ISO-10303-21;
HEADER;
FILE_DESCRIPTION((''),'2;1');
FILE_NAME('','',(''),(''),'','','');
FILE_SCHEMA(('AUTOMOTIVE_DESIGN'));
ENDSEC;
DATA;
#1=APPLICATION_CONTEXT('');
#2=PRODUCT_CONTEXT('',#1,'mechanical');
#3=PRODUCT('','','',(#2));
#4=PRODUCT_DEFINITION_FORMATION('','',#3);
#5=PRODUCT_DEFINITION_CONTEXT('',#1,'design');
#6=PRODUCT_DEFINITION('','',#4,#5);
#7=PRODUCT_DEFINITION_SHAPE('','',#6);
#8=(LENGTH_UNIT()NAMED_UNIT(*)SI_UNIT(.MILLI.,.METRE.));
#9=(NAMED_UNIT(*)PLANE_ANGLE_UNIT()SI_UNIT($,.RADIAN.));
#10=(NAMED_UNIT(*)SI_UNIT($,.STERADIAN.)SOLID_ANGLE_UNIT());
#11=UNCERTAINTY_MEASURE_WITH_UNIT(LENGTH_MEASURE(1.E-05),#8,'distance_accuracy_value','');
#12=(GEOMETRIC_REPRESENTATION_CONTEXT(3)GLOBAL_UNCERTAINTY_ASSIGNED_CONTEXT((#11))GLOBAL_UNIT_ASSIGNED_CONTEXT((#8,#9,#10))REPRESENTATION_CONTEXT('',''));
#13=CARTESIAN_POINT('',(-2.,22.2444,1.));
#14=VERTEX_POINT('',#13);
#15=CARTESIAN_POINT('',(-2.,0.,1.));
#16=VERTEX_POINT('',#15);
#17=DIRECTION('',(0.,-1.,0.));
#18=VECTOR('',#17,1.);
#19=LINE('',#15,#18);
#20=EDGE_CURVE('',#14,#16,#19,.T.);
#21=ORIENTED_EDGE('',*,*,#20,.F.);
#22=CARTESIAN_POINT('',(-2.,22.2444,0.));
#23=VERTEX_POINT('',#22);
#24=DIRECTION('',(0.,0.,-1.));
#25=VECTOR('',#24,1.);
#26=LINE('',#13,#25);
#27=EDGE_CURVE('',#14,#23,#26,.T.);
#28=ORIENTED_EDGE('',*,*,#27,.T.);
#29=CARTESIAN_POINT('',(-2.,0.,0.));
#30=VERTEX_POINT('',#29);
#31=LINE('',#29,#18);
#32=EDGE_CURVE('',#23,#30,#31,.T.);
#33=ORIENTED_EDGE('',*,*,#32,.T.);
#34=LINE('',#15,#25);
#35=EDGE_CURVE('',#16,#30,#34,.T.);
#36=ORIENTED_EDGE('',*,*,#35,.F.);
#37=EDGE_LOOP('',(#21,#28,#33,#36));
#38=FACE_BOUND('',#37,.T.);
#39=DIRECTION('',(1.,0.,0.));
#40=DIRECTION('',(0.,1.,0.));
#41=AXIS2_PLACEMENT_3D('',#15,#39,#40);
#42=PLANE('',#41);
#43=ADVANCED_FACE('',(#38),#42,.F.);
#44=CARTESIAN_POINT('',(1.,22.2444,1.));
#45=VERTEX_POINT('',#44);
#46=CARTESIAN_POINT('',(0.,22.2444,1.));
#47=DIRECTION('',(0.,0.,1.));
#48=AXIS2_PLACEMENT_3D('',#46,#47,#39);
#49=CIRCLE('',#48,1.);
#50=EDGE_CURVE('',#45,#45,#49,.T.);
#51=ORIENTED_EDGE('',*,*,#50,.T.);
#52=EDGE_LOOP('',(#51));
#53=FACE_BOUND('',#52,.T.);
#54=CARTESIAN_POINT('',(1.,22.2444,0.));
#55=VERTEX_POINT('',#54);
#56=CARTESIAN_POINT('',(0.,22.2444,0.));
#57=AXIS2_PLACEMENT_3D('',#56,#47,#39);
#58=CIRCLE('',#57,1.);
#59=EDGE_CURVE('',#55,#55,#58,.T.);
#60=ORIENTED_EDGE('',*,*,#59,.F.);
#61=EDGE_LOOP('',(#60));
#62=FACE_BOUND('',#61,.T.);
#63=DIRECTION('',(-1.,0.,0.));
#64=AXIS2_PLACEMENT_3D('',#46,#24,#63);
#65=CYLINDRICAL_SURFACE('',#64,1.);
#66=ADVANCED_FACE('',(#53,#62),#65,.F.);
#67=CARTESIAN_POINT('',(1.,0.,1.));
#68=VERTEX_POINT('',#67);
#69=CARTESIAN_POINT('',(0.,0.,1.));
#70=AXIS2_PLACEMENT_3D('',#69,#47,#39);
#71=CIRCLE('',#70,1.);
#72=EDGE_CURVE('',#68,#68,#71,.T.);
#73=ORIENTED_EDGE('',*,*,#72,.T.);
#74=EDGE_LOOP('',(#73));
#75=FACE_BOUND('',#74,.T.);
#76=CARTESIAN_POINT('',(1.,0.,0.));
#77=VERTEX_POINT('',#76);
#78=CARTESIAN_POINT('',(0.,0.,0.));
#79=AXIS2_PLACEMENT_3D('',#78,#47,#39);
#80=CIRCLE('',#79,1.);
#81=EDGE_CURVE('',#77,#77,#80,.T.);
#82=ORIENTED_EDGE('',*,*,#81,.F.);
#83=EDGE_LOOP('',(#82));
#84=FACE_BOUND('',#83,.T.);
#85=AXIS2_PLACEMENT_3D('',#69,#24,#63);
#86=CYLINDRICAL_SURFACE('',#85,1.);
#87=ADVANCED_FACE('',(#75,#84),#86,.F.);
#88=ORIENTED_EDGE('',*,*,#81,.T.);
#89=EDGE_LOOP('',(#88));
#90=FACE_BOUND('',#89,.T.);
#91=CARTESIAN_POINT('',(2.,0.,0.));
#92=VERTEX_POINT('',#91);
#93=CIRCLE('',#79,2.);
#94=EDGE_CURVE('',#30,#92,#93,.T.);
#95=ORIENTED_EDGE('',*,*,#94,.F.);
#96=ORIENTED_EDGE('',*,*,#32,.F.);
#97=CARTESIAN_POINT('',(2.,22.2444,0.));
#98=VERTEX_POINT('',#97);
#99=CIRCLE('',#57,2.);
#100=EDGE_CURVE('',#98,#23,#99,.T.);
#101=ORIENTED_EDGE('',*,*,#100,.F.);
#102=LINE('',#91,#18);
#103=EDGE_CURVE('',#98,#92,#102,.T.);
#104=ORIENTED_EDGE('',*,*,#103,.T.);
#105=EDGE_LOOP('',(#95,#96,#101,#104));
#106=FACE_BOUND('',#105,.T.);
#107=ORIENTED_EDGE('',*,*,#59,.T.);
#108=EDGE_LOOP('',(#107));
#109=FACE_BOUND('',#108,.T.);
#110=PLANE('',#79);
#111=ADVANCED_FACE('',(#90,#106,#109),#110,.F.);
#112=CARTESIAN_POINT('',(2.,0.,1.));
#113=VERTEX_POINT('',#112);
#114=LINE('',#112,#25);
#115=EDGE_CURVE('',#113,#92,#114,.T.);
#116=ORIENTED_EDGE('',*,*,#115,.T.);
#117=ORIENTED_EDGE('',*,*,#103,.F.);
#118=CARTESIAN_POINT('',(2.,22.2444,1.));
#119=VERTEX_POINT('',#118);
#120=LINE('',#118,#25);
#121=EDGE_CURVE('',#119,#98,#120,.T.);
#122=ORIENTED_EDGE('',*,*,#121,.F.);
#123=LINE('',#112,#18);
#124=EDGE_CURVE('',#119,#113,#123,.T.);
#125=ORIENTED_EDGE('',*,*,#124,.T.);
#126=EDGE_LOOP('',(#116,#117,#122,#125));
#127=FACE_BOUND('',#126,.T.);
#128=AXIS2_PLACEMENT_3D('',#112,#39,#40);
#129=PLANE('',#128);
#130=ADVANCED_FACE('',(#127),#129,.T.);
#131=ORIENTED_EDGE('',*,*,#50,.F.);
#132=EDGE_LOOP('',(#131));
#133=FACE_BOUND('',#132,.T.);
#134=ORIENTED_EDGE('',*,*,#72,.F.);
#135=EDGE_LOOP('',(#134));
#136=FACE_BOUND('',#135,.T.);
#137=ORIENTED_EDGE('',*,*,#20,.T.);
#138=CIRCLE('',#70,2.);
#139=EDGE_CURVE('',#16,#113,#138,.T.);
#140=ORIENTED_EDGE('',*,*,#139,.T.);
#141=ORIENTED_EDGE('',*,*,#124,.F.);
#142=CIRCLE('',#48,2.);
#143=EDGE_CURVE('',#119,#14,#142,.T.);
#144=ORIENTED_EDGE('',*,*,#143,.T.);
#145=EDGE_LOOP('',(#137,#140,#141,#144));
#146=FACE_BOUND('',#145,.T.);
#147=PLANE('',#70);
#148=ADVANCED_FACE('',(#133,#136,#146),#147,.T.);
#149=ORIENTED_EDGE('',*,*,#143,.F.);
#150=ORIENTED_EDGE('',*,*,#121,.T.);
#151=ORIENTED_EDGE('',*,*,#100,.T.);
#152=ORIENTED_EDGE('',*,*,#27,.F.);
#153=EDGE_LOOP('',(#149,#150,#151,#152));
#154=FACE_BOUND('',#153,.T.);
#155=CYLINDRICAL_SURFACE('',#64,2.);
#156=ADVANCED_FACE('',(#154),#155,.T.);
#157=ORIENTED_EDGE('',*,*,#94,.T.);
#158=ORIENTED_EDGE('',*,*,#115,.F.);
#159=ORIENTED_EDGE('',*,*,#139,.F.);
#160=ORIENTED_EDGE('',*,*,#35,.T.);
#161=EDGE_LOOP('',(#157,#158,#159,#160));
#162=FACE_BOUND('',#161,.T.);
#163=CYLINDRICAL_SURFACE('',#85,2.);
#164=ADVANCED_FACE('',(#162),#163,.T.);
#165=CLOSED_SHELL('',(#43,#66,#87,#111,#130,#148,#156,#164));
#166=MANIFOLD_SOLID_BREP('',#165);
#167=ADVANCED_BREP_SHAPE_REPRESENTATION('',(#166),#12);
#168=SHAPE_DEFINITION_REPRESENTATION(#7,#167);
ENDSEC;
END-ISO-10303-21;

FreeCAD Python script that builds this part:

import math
import FreeCAD as App
import Part
import Sketcher

doc = App.newDocument("Part")
body = doc.addObject("PartDesign::Body", "Body")

# Sketch on XY plane
sketch1 = body.newObject("Sketcher::SketchObject", "Sketch")
sketch1.AttachmentSupport = (doc.getObject("XY_Plane"), [""])
sketch1.MapMode = "FlatFace"
sketch1.addGeometry([
    Part.LineSegment(App.Vector(-2, 22.2, 0), App.Vector(-2, 0, 0)),  # 0
    Part.ArcOfCircle(Part.Circle(App.Vector(0, 0, 0), App.Vector(0, 0, 1), 2), math.radians(180), math.radians(360)),  # 1
    Part.LineSegment(App.Vector(2, 0, 0), App.Vector(2, 22.2, 0)),  # 2
    Part.ArcOfCircle(Part.Circle(App.Vector(0, 22.2, 0), App.Vector(0, 0, 1), 2), math.radians(0), math.radians(180)),  # 3
    Part.Circle(App.Vector(0, 0, 0), App.Vector(0, 0, 1), 1),  # 4
    Part.Circle(App.Vector(0, 22.2, 0), App.Vector(0, 0, 1), 1),  # 5
], False)
sketch1.addConstraint([
    Sketcher.Constraint("Tangent", 0, 2, 1, 1),
    Sketcher.Constraint("Tangent", 1, 2, 2, 1),
    Sketcher.Constraint("Tangent", 2, 2, 3, 1),
    Sketcher.Constraint("Tangent", 3, 2, 0, 1),
    Sketcher.Constraint("Vertical", 0),
    Sketcher.Constraint("Vertical", 2),
    Sketcher.Constraint("Coincident", 1, 3, -1, 1),
    Sketcher.Constraint("Coincident", 4, 3, -1, 1),
    Sketcher.Constraint("Coincident", 5, 3, 3, 3),
    Sketcher.Constraint("Equal", 4, 5),
    Sketcher.Constraint("Diameter", 4, 2.0),
    Sketcher.Constraint("Radius", 1, 2.0),
    Sketcher.Constraint("DistanceY", 0, 2, 0, 1, 22.2444),
])
pad1 = body.newObject("PartDesign::Pad", "Pad")
pad1.Profile = sketch1
pad1.Length = 1

doc.recompute()
